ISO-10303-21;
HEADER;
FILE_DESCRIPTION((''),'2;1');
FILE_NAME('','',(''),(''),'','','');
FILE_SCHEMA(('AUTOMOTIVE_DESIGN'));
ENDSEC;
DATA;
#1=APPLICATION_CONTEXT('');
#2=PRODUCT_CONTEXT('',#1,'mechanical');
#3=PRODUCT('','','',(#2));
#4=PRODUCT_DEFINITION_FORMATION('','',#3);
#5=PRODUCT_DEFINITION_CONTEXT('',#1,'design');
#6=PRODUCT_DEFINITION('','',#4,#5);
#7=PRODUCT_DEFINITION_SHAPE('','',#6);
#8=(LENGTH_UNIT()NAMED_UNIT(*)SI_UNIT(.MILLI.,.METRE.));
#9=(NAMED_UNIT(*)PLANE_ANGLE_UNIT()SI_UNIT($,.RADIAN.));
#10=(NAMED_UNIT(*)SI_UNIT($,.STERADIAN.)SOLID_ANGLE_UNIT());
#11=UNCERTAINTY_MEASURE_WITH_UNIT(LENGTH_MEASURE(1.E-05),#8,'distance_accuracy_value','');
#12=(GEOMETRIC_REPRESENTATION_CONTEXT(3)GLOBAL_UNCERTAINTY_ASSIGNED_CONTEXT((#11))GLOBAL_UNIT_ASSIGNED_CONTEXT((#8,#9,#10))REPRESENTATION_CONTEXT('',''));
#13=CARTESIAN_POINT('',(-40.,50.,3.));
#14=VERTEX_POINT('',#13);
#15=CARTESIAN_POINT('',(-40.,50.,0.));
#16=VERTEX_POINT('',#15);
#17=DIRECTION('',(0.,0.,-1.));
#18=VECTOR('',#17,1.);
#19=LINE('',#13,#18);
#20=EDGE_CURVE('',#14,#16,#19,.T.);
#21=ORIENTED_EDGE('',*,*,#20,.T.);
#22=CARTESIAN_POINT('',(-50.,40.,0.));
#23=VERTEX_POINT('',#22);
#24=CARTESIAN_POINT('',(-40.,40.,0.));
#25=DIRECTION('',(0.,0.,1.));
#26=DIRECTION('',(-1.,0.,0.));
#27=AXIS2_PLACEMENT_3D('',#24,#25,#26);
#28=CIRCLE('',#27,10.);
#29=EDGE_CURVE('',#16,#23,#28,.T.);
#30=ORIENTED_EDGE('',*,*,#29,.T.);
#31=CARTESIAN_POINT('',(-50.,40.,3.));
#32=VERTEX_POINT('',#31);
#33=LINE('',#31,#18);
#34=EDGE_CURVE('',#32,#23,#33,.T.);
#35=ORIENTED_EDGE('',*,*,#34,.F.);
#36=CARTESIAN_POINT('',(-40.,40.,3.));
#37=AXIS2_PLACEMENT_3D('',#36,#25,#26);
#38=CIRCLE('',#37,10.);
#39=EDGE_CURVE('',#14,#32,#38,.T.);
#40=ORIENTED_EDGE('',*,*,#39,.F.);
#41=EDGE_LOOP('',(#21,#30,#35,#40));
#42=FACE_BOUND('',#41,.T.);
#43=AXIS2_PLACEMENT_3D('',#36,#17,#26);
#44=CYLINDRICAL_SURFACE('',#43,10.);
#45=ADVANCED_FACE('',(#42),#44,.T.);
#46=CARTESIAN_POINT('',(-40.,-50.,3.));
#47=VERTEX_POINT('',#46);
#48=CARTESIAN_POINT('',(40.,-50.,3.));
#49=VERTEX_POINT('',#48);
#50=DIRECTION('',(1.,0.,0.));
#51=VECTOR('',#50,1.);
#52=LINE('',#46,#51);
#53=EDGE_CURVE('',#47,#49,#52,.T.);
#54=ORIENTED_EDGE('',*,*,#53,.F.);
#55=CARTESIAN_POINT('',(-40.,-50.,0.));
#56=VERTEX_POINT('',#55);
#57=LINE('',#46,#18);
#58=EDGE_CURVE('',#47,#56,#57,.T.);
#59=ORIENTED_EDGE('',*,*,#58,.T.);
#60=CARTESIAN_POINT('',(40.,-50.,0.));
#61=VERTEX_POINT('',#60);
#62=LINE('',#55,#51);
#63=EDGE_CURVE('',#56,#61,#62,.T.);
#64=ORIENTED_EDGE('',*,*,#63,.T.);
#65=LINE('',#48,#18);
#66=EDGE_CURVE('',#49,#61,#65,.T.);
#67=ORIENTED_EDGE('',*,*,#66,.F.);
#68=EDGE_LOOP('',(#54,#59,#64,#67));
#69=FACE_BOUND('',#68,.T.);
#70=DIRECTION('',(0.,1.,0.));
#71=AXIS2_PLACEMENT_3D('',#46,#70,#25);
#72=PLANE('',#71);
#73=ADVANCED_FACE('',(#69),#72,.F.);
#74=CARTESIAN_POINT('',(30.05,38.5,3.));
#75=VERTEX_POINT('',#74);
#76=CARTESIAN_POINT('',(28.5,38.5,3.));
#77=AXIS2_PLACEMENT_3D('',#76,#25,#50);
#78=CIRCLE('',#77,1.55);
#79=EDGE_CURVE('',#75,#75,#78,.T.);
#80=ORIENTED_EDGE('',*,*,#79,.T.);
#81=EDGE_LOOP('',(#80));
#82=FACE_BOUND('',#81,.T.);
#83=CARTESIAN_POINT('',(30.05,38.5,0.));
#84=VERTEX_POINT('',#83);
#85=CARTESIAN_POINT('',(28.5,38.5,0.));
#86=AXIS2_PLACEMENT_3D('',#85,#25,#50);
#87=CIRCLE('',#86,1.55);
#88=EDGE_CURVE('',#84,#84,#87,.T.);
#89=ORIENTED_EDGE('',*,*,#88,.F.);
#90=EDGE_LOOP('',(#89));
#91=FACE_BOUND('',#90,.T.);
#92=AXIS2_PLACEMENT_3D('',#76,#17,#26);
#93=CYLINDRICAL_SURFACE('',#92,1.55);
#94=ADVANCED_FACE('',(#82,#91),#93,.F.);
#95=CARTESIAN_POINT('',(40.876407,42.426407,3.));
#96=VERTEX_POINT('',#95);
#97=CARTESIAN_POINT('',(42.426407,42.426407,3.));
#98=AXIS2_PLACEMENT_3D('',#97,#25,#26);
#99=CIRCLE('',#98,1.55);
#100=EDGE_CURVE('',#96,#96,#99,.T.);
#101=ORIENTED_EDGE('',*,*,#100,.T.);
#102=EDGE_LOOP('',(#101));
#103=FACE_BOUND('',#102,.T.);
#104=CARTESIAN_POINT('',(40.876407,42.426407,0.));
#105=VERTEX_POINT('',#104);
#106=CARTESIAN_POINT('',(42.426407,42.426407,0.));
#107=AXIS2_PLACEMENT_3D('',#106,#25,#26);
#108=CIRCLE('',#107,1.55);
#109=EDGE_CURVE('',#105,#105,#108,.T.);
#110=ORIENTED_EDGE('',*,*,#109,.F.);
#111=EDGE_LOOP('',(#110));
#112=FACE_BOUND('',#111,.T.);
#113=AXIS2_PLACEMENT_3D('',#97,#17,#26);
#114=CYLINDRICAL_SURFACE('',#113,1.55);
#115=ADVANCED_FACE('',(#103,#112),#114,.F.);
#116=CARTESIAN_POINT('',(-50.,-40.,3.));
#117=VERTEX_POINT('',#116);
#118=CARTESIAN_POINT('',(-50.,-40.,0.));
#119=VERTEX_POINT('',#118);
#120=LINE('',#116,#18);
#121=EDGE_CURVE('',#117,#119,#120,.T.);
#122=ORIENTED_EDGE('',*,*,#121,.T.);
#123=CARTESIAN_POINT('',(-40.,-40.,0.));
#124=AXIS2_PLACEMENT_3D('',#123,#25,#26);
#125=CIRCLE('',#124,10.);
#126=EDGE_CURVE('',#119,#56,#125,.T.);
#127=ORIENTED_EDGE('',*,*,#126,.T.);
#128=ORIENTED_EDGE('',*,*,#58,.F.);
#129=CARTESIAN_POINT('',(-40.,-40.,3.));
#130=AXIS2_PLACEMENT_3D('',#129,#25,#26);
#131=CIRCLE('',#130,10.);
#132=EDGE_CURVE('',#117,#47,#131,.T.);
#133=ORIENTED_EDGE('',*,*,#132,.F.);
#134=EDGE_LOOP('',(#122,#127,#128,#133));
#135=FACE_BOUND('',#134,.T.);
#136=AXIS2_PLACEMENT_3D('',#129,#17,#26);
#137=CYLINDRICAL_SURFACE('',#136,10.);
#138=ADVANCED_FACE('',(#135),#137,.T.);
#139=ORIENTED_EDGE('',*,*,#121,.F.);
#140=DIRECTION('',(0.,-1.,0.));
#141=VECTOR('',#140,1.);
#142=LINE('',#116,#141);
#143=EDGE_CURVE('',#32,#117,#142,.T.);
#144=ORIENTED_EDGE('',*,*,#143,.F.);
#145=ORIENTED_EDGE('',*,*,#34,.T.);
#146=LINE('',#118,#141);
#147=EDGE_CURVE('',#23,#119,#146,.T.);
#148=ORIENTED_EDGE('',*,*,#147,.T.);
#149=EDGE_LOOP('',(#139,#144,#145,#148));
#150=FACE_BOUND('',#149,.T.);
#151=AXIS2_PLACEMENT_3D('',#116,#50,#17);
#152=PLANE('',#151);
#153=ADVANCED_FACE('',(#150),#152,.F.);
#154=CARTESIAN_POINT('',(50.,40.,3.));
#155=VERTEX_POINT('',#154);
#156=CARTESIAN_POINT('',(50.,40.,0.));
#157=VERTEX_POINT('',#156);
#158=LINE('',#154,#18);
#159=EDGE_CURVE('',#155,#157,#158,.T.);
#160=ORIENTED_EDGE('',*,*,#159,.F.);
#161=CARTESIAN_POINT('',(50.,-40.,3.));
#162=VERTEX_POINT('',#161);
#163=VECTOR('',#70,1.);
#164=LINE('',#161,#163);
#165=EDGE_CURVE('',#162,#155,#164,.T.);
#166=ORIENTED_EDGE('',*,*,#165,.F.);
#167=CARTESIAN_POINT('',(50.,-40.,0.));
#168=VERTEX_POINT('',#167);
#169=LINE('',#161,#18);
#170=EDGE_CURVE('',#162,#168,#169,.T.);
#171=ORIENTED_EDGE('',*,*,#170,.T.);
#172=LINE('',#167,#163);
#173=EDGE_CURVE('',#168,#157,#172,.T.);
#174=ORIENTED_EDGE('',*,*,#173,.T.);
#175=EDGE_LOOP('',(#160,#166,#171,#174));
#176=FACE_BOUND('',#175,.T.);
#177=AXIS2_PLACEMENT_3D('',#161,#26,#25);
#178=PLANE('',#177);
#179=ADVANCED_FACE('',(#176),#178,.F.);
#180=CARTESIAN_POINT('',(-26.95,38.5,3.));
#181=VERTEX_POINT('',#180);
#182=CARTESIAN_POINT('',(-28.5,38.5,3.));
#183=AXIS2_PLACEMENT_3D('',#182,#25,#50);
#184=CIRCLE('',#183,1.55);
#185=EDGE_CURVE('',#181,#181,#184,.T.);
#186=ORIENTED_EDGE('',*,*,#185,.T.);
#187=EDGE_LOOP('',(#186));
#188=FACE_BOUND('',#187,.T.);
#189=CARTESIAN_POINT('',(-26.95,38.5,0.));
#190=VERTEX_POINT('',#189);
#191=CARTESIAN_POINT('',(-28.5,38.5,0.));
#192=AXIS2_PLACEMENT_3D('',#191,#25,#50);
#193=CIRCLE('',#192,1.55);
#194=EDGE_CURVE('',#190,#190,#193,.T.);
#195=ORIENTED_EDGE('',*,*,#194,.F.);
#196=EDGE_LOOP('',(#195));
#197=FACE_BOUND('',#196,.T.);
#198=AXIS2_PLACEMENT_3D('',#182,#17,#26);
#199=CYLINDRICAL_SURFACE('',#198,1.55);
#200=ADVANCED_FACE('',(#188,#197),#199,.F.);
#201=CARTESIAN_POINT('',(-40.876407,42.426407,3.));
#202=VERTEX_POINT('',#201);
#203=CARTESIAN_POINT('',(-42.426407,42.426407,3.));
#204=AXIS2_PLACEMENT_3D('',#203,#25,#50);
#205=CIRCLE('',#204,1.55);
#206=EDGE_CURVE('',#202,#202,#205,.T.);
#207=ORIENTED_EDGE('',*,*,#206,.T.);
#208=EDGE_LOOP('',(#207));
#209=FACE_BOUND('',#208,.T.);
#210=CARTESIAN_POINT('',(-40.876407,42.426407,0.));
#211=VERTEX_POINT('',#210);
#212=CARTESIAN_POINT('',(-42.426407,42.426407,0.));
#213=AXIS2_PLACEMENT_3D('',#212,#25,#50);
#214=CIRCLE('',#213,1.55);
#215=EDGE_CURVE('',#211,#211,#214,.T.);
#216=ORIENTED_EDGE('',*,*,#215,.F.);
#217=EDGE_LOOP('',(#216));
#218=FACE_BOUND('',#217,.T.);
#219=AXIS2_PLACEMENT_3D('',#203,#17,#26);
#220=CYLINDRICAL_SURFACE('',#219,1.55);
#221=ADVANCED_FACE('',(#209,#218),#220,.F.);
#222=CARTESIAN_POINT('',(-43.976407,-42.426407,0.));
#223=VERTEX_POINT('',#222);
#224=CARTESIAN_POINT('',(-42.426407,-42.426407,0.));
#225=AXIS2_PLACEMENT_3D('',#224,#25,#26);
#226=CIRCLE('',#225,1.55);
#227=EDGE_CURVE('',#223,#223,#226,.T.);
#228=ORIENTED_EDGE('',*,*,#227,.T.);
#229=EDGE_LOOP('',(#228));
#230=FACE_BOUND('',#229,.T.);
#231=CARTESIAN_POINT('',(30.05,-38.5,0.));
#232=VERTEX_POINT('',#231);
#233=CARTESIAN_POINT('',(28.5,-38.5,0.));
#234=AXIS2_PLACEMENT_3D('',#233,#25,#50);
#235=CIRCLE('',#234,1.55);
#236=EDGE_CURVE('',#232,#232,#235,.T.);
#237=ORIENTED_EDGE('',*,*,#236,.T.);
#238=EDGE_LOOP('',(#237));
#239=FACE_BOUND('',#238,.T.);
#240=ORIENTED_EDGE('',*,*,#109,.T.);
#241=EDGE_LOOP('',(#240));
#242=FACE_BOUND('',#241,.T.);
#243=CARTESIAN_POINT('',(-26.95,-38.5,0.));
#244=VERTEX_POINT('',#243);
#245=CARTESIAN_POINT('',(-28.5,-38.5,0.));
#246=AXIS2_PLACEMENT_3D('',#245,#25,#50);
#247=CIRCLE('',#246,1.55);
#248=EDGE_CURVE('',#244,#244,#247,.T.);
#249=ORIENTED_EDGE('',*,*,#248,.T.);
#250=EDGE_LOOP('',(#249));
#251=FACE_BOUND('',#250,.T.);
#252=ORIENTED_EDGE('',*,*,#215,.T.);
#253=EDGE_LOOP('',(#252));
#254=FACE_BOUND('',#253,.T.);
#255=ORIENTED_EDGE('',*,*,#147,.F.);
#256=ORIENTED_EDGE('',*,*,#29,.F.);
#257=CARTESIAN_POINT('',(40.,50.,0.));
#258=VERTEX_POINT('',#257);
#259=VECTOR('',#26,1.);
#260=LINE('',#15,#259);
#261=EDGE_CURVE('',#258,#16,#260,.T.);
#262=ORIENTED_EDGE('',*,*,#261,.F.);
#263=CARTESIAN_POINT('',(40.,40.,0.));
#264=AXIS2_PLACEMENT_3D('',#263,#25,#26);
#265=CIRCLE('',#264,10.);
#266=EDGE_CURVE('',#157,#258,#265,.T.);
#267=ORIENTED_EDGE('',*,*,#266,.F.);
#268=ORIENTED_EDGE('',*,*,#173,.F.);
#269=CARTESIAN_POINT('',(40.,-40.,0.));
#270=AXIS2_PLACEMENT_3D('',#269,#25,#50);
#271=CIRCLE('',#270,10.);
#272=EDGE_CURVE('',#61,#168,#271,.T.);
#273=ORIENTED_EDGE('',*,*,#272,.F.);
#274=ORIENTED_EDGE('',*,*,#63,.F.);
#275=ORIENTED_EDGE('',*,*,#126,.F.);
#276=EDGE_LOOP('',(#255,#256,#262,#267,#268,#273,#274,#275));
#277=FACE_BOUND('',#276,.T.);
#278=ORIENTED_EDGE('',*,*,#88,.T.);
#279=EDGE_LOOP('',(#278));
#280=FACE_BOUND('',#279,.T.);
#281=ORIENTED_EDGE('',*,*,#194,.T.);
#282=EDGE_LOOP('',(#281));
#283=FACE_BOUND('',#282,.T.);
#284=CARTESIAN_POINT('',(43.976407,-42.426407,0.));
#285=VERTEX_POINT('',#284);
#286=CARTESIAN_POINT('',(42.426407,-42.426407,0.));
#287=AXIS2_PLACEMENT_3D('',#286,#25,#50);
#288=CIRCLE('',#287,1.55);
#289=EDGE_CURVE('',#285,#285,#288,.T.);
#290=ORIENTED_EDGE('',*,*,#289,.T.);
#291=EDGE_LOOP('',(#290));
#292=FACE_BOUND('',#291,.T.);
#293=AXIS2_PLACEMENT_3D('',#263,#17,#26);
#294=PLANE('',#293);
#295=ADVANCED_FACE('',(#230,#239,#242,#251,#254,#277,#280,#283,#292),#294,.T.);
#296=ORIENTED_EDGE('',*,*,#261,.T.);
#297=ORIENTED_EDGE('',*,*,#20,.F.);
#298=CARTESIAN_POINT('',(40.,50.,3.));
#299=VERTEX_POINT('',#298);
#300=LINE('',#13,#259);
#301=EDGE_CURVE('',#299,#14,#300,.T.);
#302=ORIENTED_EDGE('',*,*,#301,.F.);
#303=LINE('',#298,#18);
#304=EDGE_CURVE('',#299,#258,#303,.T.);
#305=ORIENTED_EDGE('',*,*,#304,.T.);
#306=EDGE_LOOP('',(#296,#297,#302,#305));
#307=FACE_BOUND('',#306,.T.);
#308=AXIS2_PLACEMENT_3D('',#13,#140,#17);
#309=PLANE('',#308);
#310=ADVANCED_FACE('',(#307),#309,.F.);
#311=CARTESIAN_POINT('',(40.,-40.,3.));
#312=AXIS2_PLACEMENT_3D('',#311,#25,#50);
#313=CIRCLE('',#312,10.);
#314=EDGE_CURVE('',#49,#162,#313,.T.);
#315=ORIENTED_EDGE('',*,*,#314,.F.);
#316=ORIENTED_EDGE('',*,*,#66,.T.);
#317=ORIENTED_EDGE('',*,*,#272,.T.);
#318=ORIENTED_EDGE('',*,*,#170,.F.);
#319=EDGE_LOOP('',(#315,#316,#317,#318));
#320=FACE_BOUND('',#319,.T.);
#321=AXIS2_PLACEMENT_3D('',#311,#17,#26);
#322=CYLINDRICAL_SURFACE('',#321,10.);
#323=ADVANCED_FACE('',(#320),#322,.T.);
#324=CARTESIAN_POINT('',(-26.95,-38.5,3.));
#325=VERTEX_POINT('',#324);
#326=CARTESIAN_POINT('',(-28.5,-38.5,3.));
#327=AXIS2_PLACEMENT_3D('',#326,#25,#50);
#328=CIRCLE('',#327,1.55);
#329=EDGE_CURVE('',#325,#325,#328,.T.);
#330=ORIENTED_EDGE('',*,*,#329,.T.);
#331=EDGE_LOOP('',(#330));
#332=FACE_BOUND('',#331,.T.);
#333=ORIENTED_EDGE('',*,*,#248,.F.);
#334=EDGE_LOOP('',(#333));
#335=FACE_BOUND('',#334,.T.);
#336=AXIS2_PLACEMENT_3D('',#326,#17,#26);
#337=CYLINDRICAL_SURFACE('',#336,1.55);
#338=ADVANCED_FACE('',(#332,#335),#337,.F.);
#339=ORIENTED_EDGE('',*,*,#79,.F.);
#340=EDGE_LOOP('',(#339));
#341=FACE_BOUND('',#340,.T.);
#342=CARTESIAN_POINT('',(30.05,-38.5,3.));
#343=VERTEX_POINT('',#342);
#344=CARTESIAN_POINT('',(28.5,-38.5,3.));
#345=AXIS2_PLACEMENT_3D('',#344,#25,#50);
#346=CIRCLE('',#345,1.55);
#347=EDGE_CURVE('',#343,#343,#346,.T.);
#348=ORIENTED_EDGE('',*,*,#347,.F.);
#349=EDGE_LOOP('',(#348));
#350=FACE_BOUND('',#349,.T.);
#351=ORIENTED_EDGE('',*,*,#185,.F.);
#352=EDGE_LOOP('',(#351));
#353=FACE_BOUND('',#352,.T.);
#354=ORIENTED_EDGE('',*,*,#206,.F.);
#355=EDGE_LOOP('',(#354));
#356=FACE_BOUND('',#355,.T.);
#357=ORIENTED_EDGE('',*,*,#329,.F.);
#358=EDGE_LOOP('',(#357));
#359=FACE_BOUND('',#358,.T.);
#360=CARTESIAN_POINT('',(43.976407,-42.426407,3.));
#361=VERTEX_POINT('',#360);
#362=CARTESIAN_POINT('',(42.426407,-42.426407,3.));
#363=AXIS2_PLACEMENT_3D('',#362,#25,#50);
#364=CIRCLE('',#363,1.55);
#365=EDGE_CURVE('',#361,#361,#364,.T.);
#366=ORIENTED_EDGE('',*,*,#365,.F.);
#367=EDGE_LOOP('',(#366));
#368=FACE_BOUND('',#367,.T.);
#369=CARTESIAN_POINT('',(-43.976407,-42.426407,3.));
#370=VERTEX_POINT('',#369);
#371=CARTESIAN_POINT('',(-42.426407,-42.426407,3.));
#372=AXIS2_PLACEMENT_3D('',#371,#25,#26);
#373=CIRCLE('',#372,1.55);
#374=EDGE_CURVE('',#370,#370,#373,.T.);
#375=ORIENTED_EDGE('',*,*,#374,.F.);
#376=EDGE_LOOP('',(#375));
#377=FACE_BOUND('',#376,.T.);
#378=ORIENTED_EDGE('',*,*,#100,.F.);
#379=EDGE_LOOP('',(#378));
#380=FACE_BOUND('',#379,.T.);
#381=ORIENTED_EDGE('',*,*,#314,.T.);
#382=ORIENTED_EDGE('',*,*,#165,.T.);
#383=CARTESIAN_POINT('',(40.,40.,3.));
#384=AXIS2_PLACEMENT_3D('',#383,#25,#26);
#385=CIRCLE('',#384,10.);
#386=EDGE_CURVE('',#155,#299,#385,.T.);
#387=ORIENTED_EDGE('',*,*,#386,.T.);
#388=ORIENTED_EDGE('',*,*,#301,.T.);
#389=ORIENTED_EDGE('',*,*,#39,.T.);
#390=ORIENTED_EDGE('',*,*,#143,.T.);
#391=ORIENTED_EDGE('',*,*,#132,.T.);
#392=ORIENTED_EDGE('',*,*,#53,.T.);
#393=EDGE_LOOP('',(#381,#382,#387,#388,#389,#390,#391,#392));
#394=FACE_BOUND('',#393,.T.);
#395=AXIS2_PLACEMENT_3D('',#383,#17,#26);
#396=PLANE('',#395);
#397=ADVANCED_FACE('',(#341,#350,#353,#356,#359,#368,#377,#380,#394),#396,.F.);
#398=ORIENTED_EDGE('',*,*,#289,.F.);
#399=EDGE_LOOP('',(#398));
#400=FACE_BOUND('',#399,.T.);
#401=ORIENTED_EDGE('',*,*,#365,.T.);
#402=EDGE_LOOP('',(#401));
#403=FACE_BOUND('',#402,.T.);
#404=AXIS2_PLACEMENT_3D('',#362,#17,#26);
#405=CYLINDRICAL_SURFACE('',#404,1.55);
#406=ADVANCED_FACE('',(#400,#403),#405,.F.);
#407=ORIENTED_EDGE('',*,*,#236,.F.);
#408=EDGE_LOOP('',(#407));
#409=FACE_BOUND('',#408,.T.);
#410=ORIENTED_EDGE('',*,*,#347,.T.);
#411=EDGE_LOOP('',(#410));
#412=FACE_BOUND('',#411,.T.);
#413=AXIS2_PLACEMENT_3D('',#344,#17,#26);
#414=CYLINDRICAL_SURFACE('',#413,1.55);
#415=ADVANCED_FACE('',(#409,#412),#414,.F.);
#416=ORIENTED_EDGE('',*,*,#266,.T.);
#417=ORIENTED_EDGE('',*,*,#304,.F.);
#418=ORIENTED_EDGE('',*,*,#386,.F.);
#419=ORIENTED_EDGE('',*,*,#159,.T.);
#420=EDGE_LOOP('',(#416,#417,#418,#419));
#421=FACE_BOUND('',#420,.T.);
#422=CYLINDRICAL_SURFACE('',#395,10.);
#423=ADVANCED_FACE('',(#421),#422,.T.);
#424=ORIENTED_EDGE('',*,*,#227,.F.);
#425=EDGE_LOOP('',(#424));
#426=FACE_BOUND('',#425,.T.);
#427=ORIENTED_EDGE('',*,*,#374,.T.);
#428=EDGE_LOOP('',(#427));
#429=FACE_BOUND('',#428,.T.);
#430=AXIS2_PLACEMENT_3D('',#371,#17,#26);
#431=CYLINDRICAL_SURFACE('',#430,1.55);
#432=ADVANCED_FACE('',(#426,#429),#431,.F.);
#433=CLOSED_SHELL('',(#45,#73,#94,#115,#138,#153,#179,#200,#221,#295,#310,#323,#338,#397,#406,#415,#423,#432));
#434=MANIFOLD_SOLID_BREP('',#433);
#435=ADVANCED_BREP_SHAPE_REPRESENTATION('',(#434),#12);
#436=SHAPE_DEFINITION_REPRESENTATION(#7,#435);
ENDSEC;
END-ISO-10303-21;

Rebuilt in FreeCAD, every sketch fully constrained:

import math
import FreeCAD as App
import Part
import Sketcher

V = App.Vector

doc = App.newDocument("Part")
params = doc.addObject("Spreadsheet::Sheet", "Params")
for row, (alias, value) in enumerate([
    ("sketch1_radius", "10 mm"),
    ("sketch1_diameter", "3.1 mm"),
    ("sketch1_width", "80 mm"),
    ("pad1_length", "3 mm"),
], start=1):
    params.set(f"A{row}", alias)
    params.set(f"B{row}", "=" + value)
    params.setAlias(f"B{row}", alias)

body = doc.addObject("PartDesign::Body", "Body")

# Sketch on XY plane
sketch1 = body.newObject("Sketcher::SketchObject", "Sketch")
sketch1.AttachmentSupport = (doc.getObject("XY_Plane"), [""])
sketch1.MapMode = "FlatFace"
sketch1.addGeometry(Part.LineSegment(V(-40, -50, 0), V(40, -50, 0)), False)
sketch1.addGeometry(Part.ArcOfCircle(Part.Circle(V(40, -40, 0), V(0, 0, 1), 10), math.radians(-90), math.radians(0)), False)
sketch1.addGeometry(Part.LineSegment(V(50, -40, 0), V(50, 40, 0)), False)
sketch1.addGeometry(Part.ArcOfCircle(Part.Circle(V(40, 40, 0), V(0, 0, 1), 10), math.radians(0), math.radians(90)), False)
sketch1.addGeometry(Part.LineSegment(V(40, 50, 0), V(-40, 50, 0)), False)
sketch1.addGeometry(Part.ArcOfCircle(Part.Circle(V(-40, 40, 0), V(0, 0, 1), 10), math.radians(90), math.radians(180)), False)
sketch1.addGeometry(Part.LineSegment(V(-50, 40, 0), V(-50, -40, 0)), False)
sketch1.addGeometry(Part.ArcOfCircle(Part.Circle(V(-40, -40, 0), V(0, 0, 1), 10), math.radians(180), math.radians(270)), False)
sketch1.addGeometry(Part.Circle(V(-42.426407, -42.426407, 0), V(0, 0, 1), 1.55), False)
sketch1.addGeometry(Part.Circle(V(-28.5, -38.5, 0), V(0, 0, 1), 1.55), False)
sketch1.addGeometry(Part.Circle(V(28.5, -38.5, 0), V(0, 0, 1), 1.55), False)
sketch1.addGeometry(Part.Circle(V(42.426407, -42.426407, 0), V(0, 0, 1), 1.55), False)
sketch1.addGeometry(Part.Circle(V(-42.426407, 42.426407, 0), V(0, 0, 1), 1.55), False)
sketch1.addGeometry(Part.Circle(V(-28.5, 38.5, 0), V(0, 0, 1), 1.55), False)
sketch1.addGeometry(Part.Circle(V(28.5, 38.5, 0), V(0, 0, 1), 1.55), False)
sketch1.addGeometry(Part.Circle(V(42.426407, 42.426407, 0), V(0, 0, 1), 1.55), False)
sketch1.addConstraint(Sketcher.Constraint("Tangent", 0, 2, 1, 1))
sketch1.addConstraint(Sketcher.Constraint("Tangent", 1, 2, 2, 1))
sketch1.addConstraint(Sketcher.Constraint("Tangent", 2, 2, 3, 1))
sketch1.addConstraint(Sketcher.Constraint("Tangent", 3, 2, 4, 1))
sketch1.addConstraint(Sketcher.Constraint("Tangent", 4, 2, 5, 1))
sketch1.addConstraint(Sketcher.Constraint("Tangent", 5, 2, 6, 1))
sketch1.addConstraint(Sketcher.Constraint("Tangent", 6, 2, 7, 1))
sketch1.addConstraint(Sketcher.Constraint("Tangent", 7, 2, 0, 1))
sketch1.addConstraint(Sketcher.Constraint("Horizontal", 0))
sketch1.addConstraint(Sketcher.Constraint("Vertical", 2))
sketch1.addConstraint(Sketcher.Constraint("Horizontal", 4))
sketch1.addConstraint(Sketcher.Constraint("Vertical", 6))
sketch1.addConstraint(Sketcher.Constraint("Equal", 1, 3))
sketch1.addConstraint(Sketcher.Constraint("Equal", 3, 5))
sketch1.addConstraint(Sketcher.Constraint("Equal", 5, 7))
sketch1.addConstraint(Sketcher.Constraint("Equal", 8, 9))
sketch1.addConstraint(Sketcher.Constraint("Equal", 9, 10))
sketch1.addConstraint(Sketcher.Constraint("Equal", 10, 11))
sketch1.addConstraint(Sketcher.Constraint("Equal", 11, 12))
sketch1.addConstraint(Sketcher.Constraint("Equal", 12, 13))
sketch1.addConstraint(Sketcher.Constraint("Equal", 13, 14))
sketch1.addConstraint(Sketcher.Constraint("Equal", 14, 15))
sketch1.addConstraint(Sketcher.Constraint("Symmetric", 1, 3, 5, 3, -1, 1))
sketch1.addConstraint(Sketcher.Constraint("Symmetric", 11, 3, 12, 3, -1, 1))
sketch1.addConstraint(Sketcher.Constraint("Symmetric", 10, 3, 13, 3, -1, 1))
sketch1.addConstraint(Sketcher.Constraint("Symmetric", 9, 3, 14, 3, -1, 1))
sketch1.addConstraint(Sketcher.Constraint("Symmetric", 8, 3, 15, 3, -1, 1))
sketch1.addConstraint(Sketcher.Constraint("Symmetric", 9, 3, 10, 3, -2))
sketch1.addConstraint(Sketcher.Constraint("Symmetric", 8, 3, 11, 3, -2))
sketch1.addConstraint(Sketcher.Constraint("Equal", 4, 2))
sketch1.addConstraint(Sketcher.Constraint("Radius", 1, 10.0))
sketch1.addConstraint(Sketcher.Constraint("Diameter", 8, 3.1))
sketch1.addConstraint(Sketcher.Constraint("DistanceX", 0, 1, 0, 2, 80.0))
sketch1.addConstraint(Sketcher.Constraint("DistanceX", 9, 3, 10, 3, 57.0))
sketch1.addConstraint(Sketcher.Constraint("DistanceY", 9, 3, 13, 3, 77.0))
sketch1.addConstraint(Sketcher.Constraint("DistanceX", 8, 3, -1, 1, 42.426407))
sketch1.addConstraint(Sketcher.Constraint("DistanceY", 8, 3, -1, 1, 42.426407))
sketch1.setExpression("Constraints[30]", "Params.sketch1_radius")
sketch1.setExpression("Constraints[31]", "Params.sketch1_diameter")
sketch1.setExpression("Constraints[32]", "Params.sketch1_width")
pad1 = body.newObject("PartDesign::Pad", "Pad")
pad1.Profile = sketch1
pad1.setExpression("Length", "Params.pad1_length")

doc.recompute()
